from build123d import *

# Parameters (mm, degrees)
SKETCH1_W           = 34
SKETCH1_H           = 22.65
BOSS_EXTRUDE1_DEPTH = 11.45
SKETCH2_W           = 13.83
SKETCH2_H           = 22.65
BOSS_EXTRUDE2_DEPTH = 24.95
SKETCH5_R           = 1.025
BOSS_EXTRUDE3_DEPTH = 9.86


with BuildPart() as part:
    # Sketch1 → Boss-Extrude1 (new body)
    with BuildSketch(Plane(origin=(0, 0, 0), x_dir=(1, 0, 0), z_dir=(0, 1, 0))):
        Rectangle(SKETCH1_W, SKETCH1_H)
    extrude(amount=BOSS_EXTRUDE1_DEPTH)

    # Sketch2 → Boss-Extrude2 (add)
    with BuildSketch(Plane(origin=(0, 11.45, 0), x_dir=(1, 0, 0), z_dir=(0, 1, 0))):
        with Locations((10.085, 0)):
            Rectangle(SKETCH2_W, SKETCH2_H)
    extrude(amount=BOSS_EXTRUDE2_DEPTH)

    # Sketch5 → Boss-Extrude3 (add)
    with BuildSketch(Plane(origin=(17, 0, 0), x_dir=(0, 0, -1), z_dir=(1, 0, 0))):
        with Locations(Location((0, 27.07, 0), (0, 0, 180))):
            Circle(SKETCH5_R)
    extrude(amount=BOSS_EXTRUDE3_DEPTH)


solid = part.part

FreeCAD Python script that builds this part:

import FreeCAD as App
import Part
import Sketcher

doc = App.newDocument("Part")
params = doc.addObject("Spreadsheet::Sheet", "Params")
for row, (alias, value) in enumerate([
    ("sketch1_width", "34 mm"),
    ("sketch1_height", "22.65 mm"),
    ("pad1_length", "11.45 mm"),
    ("sketch2_width", "13.83 mm"),
    ("sketch2_height", "22.65 mm"),
    ("pad2_length", "24.95 mm"),
    ("sketch3_diameter", "2.05 mm"),
    ("pad3_length", "9.86 mm"),
], start=1):
    params.set(f"A{row}", alias)
    params.set(f"B{row}", "=" + value)
    params.setAlias(f"B{row}", alias)

body = doc.addObject("PartDesign::Body", "Body")

# Sketch on XZ plane
sketch1 = body.newObject("Sketcher::SketchObject", "Sketch")
sketch1.AttachmentSupport = (doc.getObject("XZ_Plane"), [""])
sketch1.MapMode = "FlatFace"
sketch1.addGeometry(Part.LineSegment(App.Vector(-17, -11, 0), App.Vector(-17, 11, 0)), False)
sketch1.addGeometry(Part.LineSegment(App.Vector(-17, 11, 0), App.Vector(17, 11, 0)), False)
sketch1.addGeometry(Part.LineSegment(App.Vector(17, 11, 0), App.Vector(17, -11, 0)), False)
sketch1.addGeometry(Part.LineSegment(App.Vector(17, -11, 0), App.Vector(-17, -11, 0)), False)
sketch1.addConstraint(Sketcher.Constraint("Coincident", 0, 2, 1, 1))
sketch1.addConstraint(Sketcher.Constraint("Coincident", 1, 2, 2, 1))
sketch1.addConstraint(Sketcher.Constraint("Coincident", 2, 2, 3, 1))
sketch1.addConstraint(Sketcher.Constraint("Coincident", 3, 2, 0, 1))
sketch1.addConstraint(Sketcher.Constraint("Vertical", 0))
sketch1.addConstraint(Sketcher.Constraint("Horizontal", 1))
sketch1.addConstraint(Sketcher.Constraint("Vertical", 2))
sketch1.addConstraint(Sketcher.Constraint("Horizontal", 3))
sketch1.addConstraint(Sketcher.Constraint("Symmetric", 0, 2, 2, 2, -1, 1))
sketch1.addConstraint(Sketcher.Constraint("DistanceX", 1, 1, 1, 2, 34.0))
sketch1.addConstraint(Sketcher.Constraint("DistanceY", 0, 1, 0, 2, 22.65))
sketch1.setExpression("Constraints[9]", "Params.sketch1_width")
sketch1.setExpression("Constraints[10]", "Params.sketch1_height")
pad1 = body.newObject("PartDesign::Pad", "Pad")
pad1.Profile = sketch1
pad1.setExpression("Length", "Params.pad1_length")
pad1.Reversed = True

# Sketch on XZ plane
sketch2 = body.newObject("Sketcher::SketchObject", "Sketch001")
sketch2.AttachmentSupport = (doc.getObject("XZ_Plane"), [""])
sketch2.MapMode = "FlatFace"
sketch2.AttachmentOffset = App.Placement(App.Vector(0, 0, -11.45), App.Rotation())
sketch2.addGeometry(Part.LineSegment(App.Vector(3, -11, 0), App.Vector(3, 11, 0)), False)
sketch2.addGeometry(Part.LineSegment(App.Vector(3, 11, 0), App.Vector(17, 11, 0)), False)
sketch2.addGeometry(Part.LineSegment(App.Vector(17, 11, 0), App.Vector(17, -11, 0)), False)
sketch2.addGeometry(Part.LineSegment(App.Vector(17, -11, 0), App.Vector(3, -11, 0)), False)
sketch2.addConstraint(Sketcher.Constraint("Coincident", 0, 2, 1, 1))
sketch2.addConstraint(Sketcher.Constraint("Coincident", 1, 2, 2, 1))
sketch2.addConstraint(Sketcher.Constraint("Coincident", 2, 2, 3, 1))
sketch2.addConstraint(Sketcher.Constraint("Coincident", 3, 2, 0, 1))
sketch2.addConstraint(Sketcher.Constraint("Vertical", 0))
sketch2.addConstraint(Sketcher.Constraint("Horizontal", 1))
sketch2.addConstraint(Sketcher.Constraint("Vertical", 2))
sketch2.addConstraint(Sketcher.Constraint("Horizontal", 3))
sketch2.addConstraint(Sketcher.Constraint("DistanceX", -1, 1, 1, 2, 17.0))
sketch2.addConstraint(Sketcher.Constraint("DistanceX", 1, 1, 1, 2, 13.83))
sketch2.addConstraint(Sketcher.Constraint("DistanceY", 0, 1, 0, 2, 22.65))
sketch2.addConstraint(Sketcher.Constraint("DistanceY", -1, 1, 0, 2, 11.325))
sketch2.setExpression("Constraints[9]", "Params.sketch2_width")
sketch2.setExpression("Constraints[10]", "Params.sketch2_height")
pad2 = body.newObject("PartDesign::Pad", "Pad001")
pad2.Profile = sketch2
pad2.setExpression("Length", "Params.pad2_length")
pad2.Reversed = True

# Sketch on YZ plane
sketch3 = body.newObject("Sketcher::SketchObject", "Sketch002")
sketch3.AttachmentSupport = (doc.getObject("YZ_Plane"), [""])
sketch3.MapMode = "FlatFace"
sketch3.AttachmentOffset = App.Placement(App.Vector(0, 0, 17), App.Rotation())
sketch3.addGeometry(Part.Circle(App.Vector(27.1, 0, 0), App.Vector(0, 0, 1), 1), False)
sketch3.addConstraint(Sketcher.Constraint("PointOnObject", 0, 3, -1))
sketch3.addConstraint(Sketcher.Constraint("Diameter", 0, 2.05))
sketch3.addConstraint(Sketcher.Constraint("DistanceX", -1, 1, 0, 3, 27.07))
sketch3.setExpression("Constraints[1]", "Params.sketch3_diameter")
pad3 = body.newObject("PartDesign::Pad", "Pad002")
pad3.Profile = sketch3
pad3.setExpression("Length", "Params.pad3_length")

doc.recompute()
